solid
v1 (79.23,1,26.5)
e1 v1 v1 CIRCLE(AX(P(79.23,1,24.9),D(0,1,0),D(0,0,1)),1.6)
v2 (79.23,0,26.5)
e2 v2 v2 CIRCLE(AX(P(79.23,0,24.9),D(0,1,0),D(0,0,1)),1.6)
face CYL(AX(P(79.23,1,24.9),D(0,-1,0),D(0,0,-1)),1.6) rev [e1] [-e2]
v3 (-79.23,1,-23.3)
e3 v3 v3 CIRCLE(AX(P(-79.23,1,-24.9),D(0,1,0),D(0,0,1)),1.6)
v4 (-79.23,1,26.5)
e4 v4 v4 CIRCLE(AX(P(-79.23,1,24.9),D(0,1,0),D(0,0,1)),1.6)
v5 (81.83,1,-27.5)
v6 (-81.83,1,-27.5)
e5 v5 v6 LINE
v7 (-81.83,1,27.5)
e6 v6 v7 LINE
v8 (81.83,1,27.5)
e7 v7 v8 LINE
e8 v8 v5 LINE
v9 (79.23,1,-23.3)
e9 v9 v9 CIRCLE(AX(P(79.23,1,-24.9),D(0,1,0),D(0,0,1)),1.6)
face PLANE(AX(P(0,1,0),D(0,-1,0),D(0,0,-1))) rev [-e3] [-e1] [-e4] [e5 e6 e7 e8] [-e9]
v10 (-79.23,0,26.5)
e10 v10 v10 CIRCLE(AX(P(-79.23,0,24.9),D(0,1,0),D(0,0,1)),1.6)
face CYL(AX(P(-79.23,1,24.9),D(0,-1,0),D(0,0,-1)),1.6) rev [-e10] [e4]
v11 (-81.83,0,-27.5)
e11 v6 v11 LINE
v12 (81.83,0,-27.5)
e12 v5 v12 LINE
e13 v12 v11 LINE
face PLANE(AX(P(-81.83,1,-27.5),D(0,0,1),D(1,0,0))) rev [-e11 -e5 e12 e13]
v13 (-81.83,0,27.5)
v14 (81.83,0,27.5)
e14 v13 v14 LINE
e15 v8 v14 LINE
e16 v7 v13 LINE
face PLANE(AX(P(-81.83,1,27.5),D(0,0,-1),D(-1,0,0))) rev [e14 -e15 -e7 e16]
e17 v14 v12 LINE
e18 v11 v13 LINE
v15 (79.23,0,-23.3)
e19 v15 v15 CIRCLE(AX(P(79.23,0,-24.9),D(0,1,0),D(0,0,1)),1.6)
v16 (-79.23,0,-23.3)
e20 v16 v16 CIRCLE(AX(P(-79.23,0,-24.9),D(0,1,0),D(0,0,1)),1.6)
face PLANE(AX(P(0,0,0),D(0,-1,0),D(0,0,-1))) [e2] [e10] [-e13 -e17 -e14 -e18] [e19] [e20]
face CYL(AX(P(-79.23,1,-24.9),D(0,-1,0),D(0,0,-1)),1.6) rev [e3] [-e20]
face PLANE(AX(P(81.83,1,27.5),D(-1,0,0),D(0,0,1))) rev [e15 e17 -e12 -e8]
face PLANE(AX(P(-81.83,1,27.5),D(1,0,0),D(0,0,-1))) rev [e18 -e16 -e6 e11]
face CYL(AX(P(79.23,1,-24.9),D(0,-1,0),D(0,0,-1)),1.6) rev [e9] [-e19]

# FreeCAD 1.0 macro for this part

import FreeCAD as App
import Part
import Sketcher
Q = App.Units.Quantity


def add_polygon(sketch, points):
    """Adds a closed chain of lines whose ends are joined by coincident constraints."""
    first, n = sketch.GeometryCount, len(points)
    for a, b in zip(points, points[1:] + points[:1]):
        sketch.addGeometry(Part.LineSegment(App.Vector(*a, 0), App.Vector(*b, 0)), False)
    for i in range(n):
        sketch.addConstraint(Sketcher.Constraint("Coincident", first + i, 2, first + (i + 1) % n, 1))

doc = App.newDocument("Part")
body = doc.addObject("PartDesign::Body", "Body")

# Sketch on XZ plane
sketch1 = doc.addObject("Sketcher::SketchObject", "Sketch")
body.addObject(sketch1)
sketch1.AttachmentSupport = (doc.XZ_Plane, [""])
sketch1.MapMode = "FlatFace"
add_polygon(sketch1, [(-81.8, -27.5), (-81.8, 27.5), (81.8, 27.5), (81.8, -27.5)])  # lines 0-3
sketch1.addGeometry(Part.Circle(App.Vector(-79.2, 24.9, 0), App.Vector(0, 0, 1), 1.6), False)  # 4
sketch1.addGeometry(Part.Circle(App.Vector(79.2, 24.9, 0), App.Vector(0, 0, 1), 1.6), False)  # 5
sketch1.addGeometry(Part.Circle(App.Vector(-79.2, -24.9, 0), App.Vector(0, 0, 1), 1.6), False)  # 6
sketch1.addGeometry(Part.Circle(App.Vector(79.2, -24.9, 0), App.Vector(0, 0, 1), 1.6), False)  # 7
sketch1.addConstraint(Sketcher.Constraint("Vertical", 0))
sketch1.addConstraint(Sketcher.Constraint("Horizontal", 1))
sketch1.addConstraint(Sketcher.Constraint("Vertical", 2))
sketch1.addConstraint(Sketcher.Constraint("Horizontal", 3))
sketch1.addConstraint(Sketcher.Constraint("Equal", 4, 5))
sketch1.addConstraint(Sketcher.Constraint("Equal", 5, 6))
sketch1.addConstraint(Sketcher.Constraint("Equal", 6, 7))
sketch1.addConstraint(Sketcher.Constraint("Symmetric", 5, 3, 6, 3, -1, 1))
sketch1.addConstraint(Sketcher.Constraint("Symmetric", 4, 3, 7, 3, -1, 1))
sketch1.addConstraint(Sketcher.Constraint("Symmetric", 0, 2, 2, 2, -1, 1))
sketch1.addConstraint(Sketcher.Constraint("Symmetric", 4, 3, 5, 3, -2))
sketch1.addConstraint(Sketcher.Constraint("Diameter", 4, Q("3.2 mm")))
sketch1.addConstraint(Sketcher.Constraint("DistanceY", 0, 1, 0, 2, Q("55 mm")))
sketch1.addConstraint(Sketcher.Constraint("DistanceX", 1, 1, 1, 2, Q("163.66 mm")))
sketch1.addConstraint(Sketcher.Constraint("DistanceY", -1, 1, 4, 3, Q("24.9 mm")))
sketch1.addConstraint(Sketcher.Constraint("DistanceX", 0, 2, 4, 3, Q("2.6 mm")))
pad1 = doc.addObject("PartDesign::Pad", "Pad")
body.addObject(pad1)
pad1.Profile = sketch1
pad1.Length = 1
pad1.Reversed = True

doc.recompute()
